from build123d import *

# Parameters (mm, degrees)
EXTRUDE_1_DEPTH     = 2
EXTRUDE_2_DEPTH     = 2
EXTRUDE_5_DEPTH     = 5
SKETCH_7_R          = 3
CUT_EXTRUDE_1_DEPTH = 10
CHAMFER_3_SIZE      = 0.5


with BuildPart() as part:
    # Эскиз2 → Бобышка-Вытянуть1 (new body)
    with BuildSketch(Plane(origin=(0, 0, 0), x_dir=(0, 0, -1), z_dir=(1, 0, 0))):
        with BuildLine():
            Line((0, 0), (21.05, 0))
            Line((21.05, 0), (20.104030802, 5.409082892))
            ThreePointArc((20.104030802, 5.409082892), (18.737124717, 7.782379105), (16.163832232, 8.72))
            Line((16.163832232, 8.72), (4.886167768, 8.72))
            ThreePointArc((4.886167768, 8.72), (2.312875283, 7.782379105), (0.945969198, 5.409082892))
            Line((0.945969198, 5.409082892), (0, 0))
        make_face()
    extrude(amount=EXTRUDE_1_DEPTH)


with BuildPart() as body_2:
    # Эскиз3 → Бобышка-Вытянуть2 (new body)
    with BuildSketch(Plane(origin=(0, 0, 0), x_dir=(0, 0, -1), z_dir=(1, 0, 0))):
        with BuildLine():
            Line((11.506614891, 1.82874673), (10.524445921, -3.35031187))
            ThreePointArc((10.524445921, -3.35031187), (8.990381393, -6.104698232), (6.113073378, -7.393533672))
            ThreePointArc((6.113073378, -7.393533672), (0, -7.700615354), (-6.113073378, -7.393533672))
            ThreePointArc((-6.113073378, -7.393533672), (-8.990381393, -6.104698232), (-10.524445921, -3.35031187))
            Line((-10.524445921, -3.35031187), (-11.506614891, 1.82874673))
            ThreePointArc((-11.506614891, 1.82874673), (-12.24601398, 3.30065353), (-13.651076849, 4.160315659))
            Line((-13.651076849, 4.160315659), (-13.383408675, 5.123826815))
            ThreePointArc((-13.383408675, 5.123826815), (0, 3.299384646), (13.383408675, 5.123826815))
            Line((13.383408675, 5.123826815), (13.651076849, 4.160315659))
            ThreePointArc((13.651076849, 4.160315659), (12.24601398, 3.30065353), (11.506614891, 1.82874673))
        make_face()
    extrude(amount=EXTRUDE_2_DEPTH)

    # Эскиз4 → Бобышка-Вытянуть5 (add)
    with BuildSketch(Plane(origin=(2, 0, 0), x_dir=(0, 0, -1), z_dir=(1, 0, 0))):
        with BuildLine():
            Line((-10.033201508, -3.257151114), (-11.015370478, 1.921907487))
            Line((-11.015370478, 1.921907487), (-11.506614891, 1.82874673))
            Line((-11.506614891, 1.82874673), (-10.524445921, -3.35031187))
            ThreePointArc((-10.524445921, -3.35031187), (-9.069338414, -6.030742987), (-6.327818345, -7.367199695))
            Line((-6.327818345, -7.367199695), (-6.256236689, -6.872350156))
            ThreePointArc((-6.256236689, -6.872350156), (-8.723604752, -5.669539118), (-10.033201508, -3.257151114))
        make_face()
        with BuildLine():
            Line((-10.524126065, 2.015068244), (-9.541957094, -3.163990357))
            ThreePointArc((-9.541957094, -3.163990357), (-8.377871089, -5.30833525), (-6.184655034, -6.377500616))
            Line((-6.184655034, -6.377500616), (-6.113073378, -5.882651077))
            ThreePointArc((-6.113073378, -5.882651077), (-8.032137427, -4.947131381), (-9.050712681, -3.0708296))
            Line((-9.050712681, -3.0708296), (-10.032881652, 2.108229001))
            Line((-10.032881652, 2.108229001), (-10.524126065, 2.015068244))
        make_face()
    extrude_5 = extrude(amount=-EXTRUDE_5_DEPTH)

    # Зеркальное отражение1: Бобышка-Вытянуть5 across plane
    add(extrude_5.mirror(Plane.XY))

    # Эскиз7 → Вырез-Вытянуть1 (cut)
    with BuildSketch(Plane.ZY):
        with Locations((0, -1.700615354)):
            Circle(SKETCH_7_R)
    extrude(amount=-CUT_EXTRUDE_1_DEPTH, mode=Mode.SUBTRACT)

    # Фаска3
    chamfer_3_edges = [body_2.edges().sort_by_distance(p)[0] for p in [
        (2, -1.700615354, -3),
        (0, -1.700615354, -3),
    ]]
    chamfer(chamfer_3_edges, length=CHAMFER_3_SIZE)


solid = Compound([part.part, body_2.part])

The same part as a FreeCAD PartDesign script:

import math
import FreeCAD as App
import Part
import Sketcher
from FreeCAD import Vector
Q = App.Units.Quantity


def edges_at(feature, points):
    """Names of the edges that pass closest to the given points."""
    edges = feature.Shape.Edges
    near = lambda p: min(range(len(edges)), key=lambda i: edges[i].distToShape(Part.Vertex(*p))[0])
    return sorted({f"Edge{near(p) + 1}" for p in points})

doc = App.newDocument("Part")
body = doc.addObject("PartDesign::Body", "Body")

# Sketch on YZ plane
sketch1 = doc.addObject("Sketcher::SketchObject", "Sketch")
body.addObject(sketch1)
sketch1.AttachmentSupport = (doc.YZ_Plane, [""])
sketch1.MapMode = "FlatFace"
sketch1.addGeometry(Part.LineSegment(Vector(0, 0, 0), Vector(0, -21.05, 0)), False)
sketch1.addGeometry(Part.LineSegment(Vector(0, -21.05, 0), Vector(5.409083, -20.104031, 0)), False)
sketch1.addGeometry(Part.ArcOfCircle(Part.Circle(Vector(4.72, -16.163832, 0), Vector(0, 0, 1), 4), math.radians(-80.08013), math.radians(0)), False)
sketch1.addGeometry(Part.LineSegment(Vector(8.72, -16.163832, 0), Vector(8.72, -4.886168, 0)), False)
sketch1.addGeometry(Part.ArcOfCircle(Part.Circle(Vector(4.72, -4.886168, 0), Vector(0, 0, 1), 4), math.radians(0), math.radians(80.08013)), False)
sketch1.addGeometry(Part.LineSegment(Vector(5.409083, -0.945969, 0), Vector(0, 0, 0)), False)
sketch1.addConstraint(Sketcher.Constraint("Coincident", 0, 2, 1, 1))
sketch1.addConstraint(Sketcher.Constraint("Tangent", 1, 2, 2, 1))
sketch1.addConstraint(Sketcher.Constraint("Tangent", 2, 2, 3, 1))
sketch1.addConstraint(Sketcher.Constraint("Tangent", 3, 2, 4, 1))
sketch1.addConstraint(Sketcher.Constraint("Tangent", 4, 2, 5, 1))
sketch1.addConstraint(Sketcher.Constraint("Coincident", 5, 2, 0, 1))
sketch1.addConstraint(Sketcher.Constraint("Vertical", 0))
sketch1.addConstraint(Sketcher.Constraint("Vertical", 3))
sketch1.addConstraint(Sketcher.Constraint("Coincident", 5, 2, -1, 1))
sketch1.addConstraint(Sketcher.Constraint("Equal", 2, 4))
sketch1.addConstraint(Sketcher.Constraint("Vertical", 1, 2, 4, 2))
sketch1.addConstraint(Sketcher.Constraint("Radius", 2, Q("4 mm")))
sketch1.addConstraint(Sketcher.Constraint("DistanceY", 0, 2, 0, 1, Q("21.05 mm")))
sketch1.addConstraint(Sketcher.Constraint("DistanceX", -1, 1, 2, 3, Q("4.72 mm")))
sketch1.addConstraint(Sketcher.Constraint("DistanceY", 1, 2, 2, 3, Q("3.940199 mm")))
pad1 = doc.addObject("PartDesign::Pad", "Pad")
body.addObject(pad1)
pad1.Profile = sketch1
pad1.Length = 2
body2 = doc.addObject("PartDesign::Body", "Body001")

# Sketch on YZ plane
sketch2 = doc.addObject("Sketcher::SketchObject", "Sketch001")
body2.addObject(sketch2)
sketch2.AttachmentSupport = (doc.getObject("YZ_Plane001"), [""])
sketch2.MapMode = "FlatFace"
sketch2.addGeometry(Part.LineSegment(Vector(-3.350312, -10.524446, 0), Vector(1.828747, -11.506615, 0)), False)
sketch2.addGeometry(Part.ArcOfCircle(Part.Circle(Vector(1.269782, -14.454081, 0), Vector(0, 0, 1), 3), math.radians(15.525557), math.radians(79.261811)), False)
sketch2.addGeometry(Part.LineSegment(Vector(4.160316, -13.651077, 0), Vector(5.123827, -13.383409, 0)), False)
sketch2.addGeometry(Part.ArcOfCircle(Part.Circle(Vector(53.299385, 0, 0), Vector(0, 0, 1), 50), math.radians(164.474443), math.radians(195.525557)), False)
sketch2.addGeometry(Part.LineSegment(Vector(5.123827, 13.383409, 0), Vector(4.160316, 13.651077, 0)), False)
sketch2.addGeometry(Part.ArcOfCircle(Part.Circle(Vector(1.269782, 14.454081, 0), Vector(0, 0, 1), 3), math.radians(-79.261811), math.radians(-15.525557)), False)
sketch2.addGeometry(Part.LineSegment(Vector(1.828747, 11.506615, 0), Vector(-3.350312, 10.524446, 0)), False)
sketch2.addGeometry(Part.ArcOfCircle(Part.Circle(Vector(-2.418704, 5.612002, 0), Vector(0, 0, 1), 5), math.radians(100.738189), math.radians(174.248488)), False)
sketch2.addGeometry(Part.ArcOfCircle(Part.Circle(Vector(53.299385, 0, 0), Vector(0, 0, 1), 61), math.radians(174.248488), math.radians(185.751512)), False)
sketch2.addGeometry(Part.ArcOfCircle(Part.Circle(Vector(-2.418704, -5.612002, 0), Vector(0, 0, 1), 5), math.radians(-174.248488), math.radians(-100.738189)), False)
sketch2.addConstraint(Sketcher.Constraint("Tangent", 0, 2, 1, 2))
sketch2.addConstraint(Sketcher.Constraint("Coincident", 1, 1, 2, 1))
sketch2.addConstraint(Sketcher.Constraint("Coincident", 2, 2, 3, 2))
sketch2.addConstraint(Sketcher.Constraint("Coincident", 3, 1, 4, 1))
sketch2.addConstraint(Sketcher.Constraint("Coincident", 4, 2, 5, 2))
sketch2.addConstraint(Sketcher.Constraint("Tangent", 5, 1, 6, 1))
sketch2.addConstraint(Sketcher.Constraint("Tangent", 6, 2, 7, 1))
sketch2.addConstraint(Sketcher.Constraint("Tangent", 7, 2, 8, 1))
sketch2.addConstraint(Sketcher.Constraint("Tangent", 8, 2, 9, 1))
sketch2.addConstraint(Sketcher.Constraint("Tangent", 9, 2, 0, 1))
sketch2.addConstraint(Sketcher.Constraint("Coincident", 8, 3, 3, 3))
sketch2.addConstraint(Sketcher.Constraint("Equal", 1, 5))
sketch2.addConstraint(Sketcher.Constraint("Equal", 7, 9))
sketch2.addConstraint(Sketcher.Constraint("Symmetric", 1, 3, 5, 3, -1))
sketch2.addConstraint(Sketcher.Constraint("Symmetric", 7, 3, 9, 3, -1))
sketch2.addConstraint(Sketcher.Constraint("Vertical", 2, 2, 3, 1))
sketch2.addConstraint(Sketcher.Constraint("Vertical", 1, 1, 4, 2))
sketch2.addConstraint(Sketcher.Constraint("Radius", 1, Q("3 mm")))
sketch2.addConstraint(Sketcher.Constraint("Radius", 3, Q("50 mm")))
sketch2.addConstraint(Sketcher.Constraint("Radius", 7, Q("5 mm")))
sketch2.addConstraint(Sketcher.Constraint("Radius", 8, Q("61 mm")))
sketch2.addConstraint(Sketcher.Constraint("Distance", 2, Q("1 mm")))
sketch2.addConstraint(Sketcher.Constraint("DistanceY", -1, 1, 7, 3, Q("5.612002 mm")))
sketch2.addConstraint(Sketcher.Constraint("DistanceY", 1, 3, -1, 1, Q("14.454081 mm")))
sketch2.addConstraint(Sketcher.Constraint("DistanceY", 2, 2, -1, 1, Q("13.383409 mm")))
sketch2.addConstraint(Sketcher.Constraint("DistanceX", 6, 2, -1, 1, Q("3.350312 mm")))
sketch2.addConstraint(Sketcher.Constraint("DistanceX", 0, 2, 1, 1, Q("2.331569 mm")))
pad2 = doc.addObject("PartDesign::Pad", "Pad001")
body2.addObject(pad2)
pad2.Profile = sketch2
pad2.Length = 2

# Sketch on YZ plane
sketch3 = doc.addObject("Sketcher::SketchObject", "Sketch002")
body2.addObject(sketch3)
sketch3.AttachmentSupport = (doc.getObject("YZ_Plane001"), [""])
sketch3.MapMode = "FlatFace"
sketch3.AttachmentOffset = App.Placement(Vector(0, 0, 2), App.Rotation())
sketch3.addGeometry(Part.LineSegment(Vector(-3.257151, 10.033202, 0), Vector(1.921907, 11.01537, 0)), False)
sketch3.addGeometry(Part.LineSegment(Vector(1.921907, 11.01537, 0), Vector(1.828747, 11.506615, 0)), False)
sketch3.addGeometry(Part.LineSegment(Vector(1.828747, 11.506615, 0), Vector(-3.350312, 10.524446, 0)), False)
sketch3.addGeometry(Part.ArcOfCircle(Part.Circle(Vector(-2.418704, 5.612002, 0), Vector(0, 0, 1), 5), math.radians(100.738189), math.radians(171.769065)), False)
sketch3.addGeometry(Part.LineSegment(Vector(-7.3672, 6.327818, 0), Vector(-6.87235, 6.256237, 0)), False)
sketch3.addGeometry(Part.ArcOfCircle(Part.Circle(Vector(-2.418704, 5.612002, 0), Vector(0, 0, 1), 4.5), math.radians(100.738189), math.radians(171.769065)), False)
sketch3.addGeometry(Part.LineSegment(Vector(2.015068, 10.524126, 0), Vector(-3.16399, 9.541957, 0)), False)
sketch3.addGeometry(Part.ArcOfCircle(Part.Circle(Vector(-2.418704, 5.612002, 0), Vector(0, 0, 1), 4), math.radians(100.738189), math.radians(171.769065)), False)
sketch3.addGeometry(Part.LineSegment(Vector(-6.377501, 6.184655, 0), Vector(-5.882651, 6.113073, 0)), False)
sketch3.addGeometry(Part.ArcOfCircle(Part.Circle(Vector(-2.418704, 5.612002, 0), Vector(0, 0, 1), 3.5), math.radians(100.738189), math.radians(171.769065)), False)
sketch3.addGeometry(Part.LineSegment(Vector(-3.07083, 9.050713, 0), Vector(2.108229, 10.032882, 0)), False)
sketch3.addGeometry(Part.LineSegment(Vector(2.108229, 10.032882, 0), Vector(2.015068, 10.524126, 0)), False)
sketch3.addConstraint(Sketcher.Constraint("Coincident", 0, 2, 1, 1))
sketch3.addConstraint(Sketcher.Constraint("Coincident", 1, 2, 2, 1))
sketch3.addConstraint(Sketcher.Constraint("Tangent", 2, 2, 3, 1))
sketch3.addConstraint(Sketcher.Constraint("Coincident", 3, 2, 4, 1))
sketch3.addConstraint(Sketcher.Constraint("Coincident", 4, 2, 5, 2))
sketch3.addConstraint(Sketcher.Constraint("Tangent", 5, 1, 0, 1))
sketch3.addConstraint(Sketcher.Constraint("Tangent", 6, 2, 7, 1))
sketch3.addConstraint(Sketcher.Constraint("Coincident", 7, 2, 8, 1))
sketch3.addConstraint(Sketcher.Constraint("Coincident", 8, 2, 9, 2))
sketch3.addConstraint(Sketcher.Constraint("Tangent", 9, 1, 10, 1))
sketch3.addConstraint(Sketcher.Constraint("Coincident", 10, 2, 11, 1))
sketch3.addConstraint(Sketcher.Constraint("Coincident", 11, 2, 6, 1))
sketch3.addConstraint(Sketcher.Constraint("Coincident", 5, 3, 3, 3))
sketch3.addConstraint(Sketcher.Constraint("Coincident", 7, 3, 3, 3))
sketch3.addConstraint(Sketcher.Constraint("Coincident", 9, 3, 3, 3))
sketch3.addConstraint(Sketcher.Constraint("Perpendicular", 0, 1))
sketch3.addConstraint(Sketcher.Constraint("Perpendicular", 1, 2))
sketch3.addConstraint(Sketcher.Constraint("Parallel", 2, 6))
sketch3.addConstraint(Sketcher.Constraint("Parallel", 4, 8))
sketch3.addConstraint(Sketcher.Constraint("Parallel", 6, 10))
sketch3.addConstraint(Sketcher.Constraint("Perpendicular", 10, 11))
sketch3.addConstraint(Sketcher.Constraint("Equal", 2, 6))
sketch3.addConstraint(Sketcher.Constraint("Equal", 4, 8))
sketch3.addConstraint(Sketcher.Constraint("Radius", 3, Q("5 mm")))
sketch3.addConstraint(Sketcher.Constraint("Radius", 7, Q("4 mm")))
sketch3.addConstraint(Sketcher.Constraint("Radius", 5, Q("4.5 mm")))
sketch3.addConstraint(Sketcher.Constraint("DistanceY", -1, 1, 3, 3, Q("5.612002 mm")))
sketch3.addConstraint(Sketcher.Constraint("DistanceX", 3, 2, -1, 1, Q("7.3672 mm")))
sketch3.addConstraint(Sketcher.Constraint("DistanceY", -1, 1, 5, 1, Q("10.033202 mm")))
sketch3.addConstraint(Sketcher.Constraint("DistanceX", 7, 2, -1, 1, Q("6.377501 mm")))
sketch3.addConstraint(Sketcher.Constraint("DistanceY", -1, 1, 0, 2, Q("11.01537 mm")))
sketch3.addConstraint(Sketcher.Constraint("DistanceX", 2, 2, -1, 1, Q("3.350312 mm")))
sketch3.addConstraint(Sketcher.Constraint("DistanceX", 4, 2, -1, 1, Q("6.87235 mm")))
pad3 = doc.addObject("PartDesign::Pad", "Pad002")
body2.addObject(pad3)
pad3.Profile = sketch3
pad3.Length = 5
pad3.Reversed = True
doc.recompute()

mirrored = doc.addObject("PartDesign::Mirrored", "Mirrored")
body2.addObject(mirrored)
mirrored.Originals = [pad3]
mirrored.MirrorPlane = (doc.getObject("XY_Plane001"), [""])
body2.Tip = mirrored

# Sketch on YZ plane
sketch4 = doc.addObject("Sketcher::SketchObject", "Sketch003")
body2.addObject(sketch4)
sketch4.AttachmentSupport = (doc.getObject("YZ_Plane001"), [""])
sketch4.MapMode = "FlatFace"
sketch4.addGeometry(Part.Circle(Vector(-1.700615, 0, 0), Vector(0, 0, 1), 3), False)
sketch4.addConstraint(Sketcher.Constraint("PointOnObject", 0, 3, -1))
sketch4.addConstraint(Sketcher.Constraint("Diameter", 0, Q("6 mm")))
sketch4.addConstraint(Sketcher.Constraint("DistanceX", 0, 3, -1, 1, Q("1.700615 mm")))
pocket1 = doc.addObject("PartDesign::Pocket", "Pocket")
body2.addObject(pocket1)
pocket1.Profile = sketch4
pocket1.Length = 10
pocket1.Reversed = True
doc.recompute()

chamfer = doc.addObject("PartDesign::Chamfer", "Chamfer")
body2.addObject(chamfer)
chamfer.Base = (pocket1, edges_at(pocket1, [(2, -1.701, -3), (0, -1.701, -3)]))
chamfer.Size = 0.5

doc.recompute()
